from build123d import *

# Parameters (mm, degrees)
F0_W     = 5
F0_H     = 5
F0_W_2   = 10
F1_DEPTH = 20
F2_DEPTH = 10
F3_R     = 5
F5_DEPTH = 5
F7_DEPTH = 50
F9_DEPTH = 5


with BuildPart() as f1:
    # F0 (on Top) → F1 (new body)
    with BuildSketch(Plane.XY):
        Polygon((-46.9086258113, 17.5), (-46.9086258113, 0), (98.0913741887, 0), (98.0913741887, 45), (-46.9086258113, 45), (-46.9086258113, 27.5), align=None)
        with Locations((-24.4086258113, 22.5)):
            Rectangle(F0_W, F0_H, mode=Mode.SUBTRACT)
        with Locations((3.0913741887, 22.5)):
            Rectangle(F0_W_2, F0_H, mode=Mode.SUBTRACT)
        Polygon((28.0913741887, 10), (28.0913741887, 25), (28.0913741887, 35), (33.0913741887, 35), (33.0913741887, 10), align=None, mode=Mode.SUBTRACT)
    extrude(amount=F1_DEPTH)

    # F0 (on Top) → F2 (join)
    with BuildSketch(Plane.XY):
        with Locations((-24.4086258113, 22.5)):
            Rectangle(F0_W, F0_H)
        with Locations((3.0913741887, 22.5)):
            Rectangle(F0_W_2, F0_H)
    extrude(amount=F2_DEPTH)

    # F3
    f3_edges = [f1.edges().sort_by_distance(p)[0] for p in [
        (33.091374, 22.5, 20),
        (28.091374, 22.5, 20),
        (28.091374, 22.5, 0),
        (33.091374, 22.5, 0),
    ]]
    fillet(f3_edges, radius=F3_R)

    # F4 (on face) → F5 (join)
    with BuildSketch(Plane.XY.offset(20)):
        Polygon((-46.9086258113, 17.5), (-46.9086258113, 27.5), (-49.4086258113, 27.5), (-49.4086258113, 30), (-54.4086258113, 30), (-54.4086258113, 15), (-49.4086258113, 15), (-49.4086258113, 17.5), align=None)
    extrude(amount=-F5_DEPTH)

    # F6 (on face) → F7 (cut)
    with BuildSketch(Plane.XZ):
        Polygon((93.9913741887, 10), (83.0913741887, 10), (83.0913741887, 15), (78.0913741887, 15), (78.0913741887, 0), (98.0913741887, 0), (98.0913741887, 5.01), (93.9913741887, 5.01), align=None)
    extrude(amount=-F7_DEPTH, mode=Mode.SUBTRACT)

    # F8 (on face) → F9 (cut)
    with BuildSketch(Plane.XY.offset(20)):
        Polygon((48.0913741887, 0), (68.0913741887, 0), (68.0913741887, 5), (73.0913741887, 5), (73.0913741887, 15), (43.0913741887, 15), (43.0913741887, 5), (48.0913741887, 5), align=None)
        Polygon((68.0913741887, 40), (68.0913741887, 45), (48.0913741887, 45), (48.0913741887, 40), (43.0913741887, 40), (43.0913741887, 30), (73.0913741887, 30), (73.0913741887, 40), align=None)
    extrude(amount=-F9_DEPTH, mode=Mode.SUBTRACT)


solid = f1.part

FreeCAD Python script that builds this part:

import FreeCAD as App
import Part
import Sketcher


def edges_at(feature, points):
    """Names of the edges that pass closest to the given points."""
    edges = feature.Shape.Edges
    near = lambda p: min(range(len(edges)), key=lambda i: edges[i].distToShape(Part.Vertex(*p))[0])
    return sorted({f"Edge{near(p) + 1}" for p in points})

doc = App.newDocument("Part")
body = doc.addObject("PartDesign::Body", "Body")

sketch1 = body.newObject("Sketcher::SketchObject", "Sketch")
sketch1.AttachmentSupport = (doc.getObject("XY_Plane"), [""])
sketch1.MapMode = "FlatFace"
sketch1.addGeometry([
    Part.LineSegment(App.Vector(-47, 0, 0), App.Vector(98, 0, 0)),
    Part.LineSegment(App.Vector(98, 0, 0), App.Vector(98, 45, 0)),
    Part.LineSegment(App.Vector(98, 45, 0), App.Vector(-47, 45, 0)),
    Part.LineSegment(App.Vector(-47, 45, 0), App.Vector(-47, 0, 0)),
    Part.LineSegment(App.Vector(-22, 20, 0), App.Vector(-27, 20, 0)),
    Part.LineSegment(App.Vector(-27, 20, 0), App.Vector(-27, 25, 0)),
    Part.LineSegment(App.Vector(-27, 25, 0), App.Vector(-22, 25, 0)),
    Part.LineSegment(App.Vector(-22, 25, 0), App.Vector(-22, 20, 0)),
    Part.LineSegment(App.Vector(8, 20, 0), App.Vector(-2, 20, 0)),
    Part.LineSegment(App.Vector(-2, 20, 0), App.Vector(-2, 25, 0)),
    Part.LineSegment(App.Vector(-2, 25, 0), App.Vector(8, 25, 0)),
    Part.LineSegment(App.Vector(8, 25, 0), App.Vector(8, 20, 0)),
    Part.LineSegment(App.Vector(33, 10, 0), App.Vector(28, 10, 0)),
    Part.LineSegment(App.Vector(28, 10, 0), App.Vector(28, 35, 0)),
    Part.LineSegment(App.Vector(28, 35, 0), App.Vector(33, 35, 0)),
    Part.LineSegment(App.Vector(33, 35, 0), App.Vector(33, 10, 0)),
], False)
sketch1.addConstraint([
    Sketcher.Constraint("Coincident", 0, 2, 1, 1),
    Sketcher.Constraint("Coincident", 1, 2, 2, 1),
    Sketcher.Constraint("Coincident", 2, 2, 3, 1),
    Sketcher.Constraint("Coincident", 3, 2, 0, 1),
    Sketcher.Constraint("Coincident", 4, 2, 5, 1),
    Sketcher.Constraint("Coincident", 5, 2, 6, 1),
    Sketcher.Constraint("Coincident", 6, 2, 7, 1),
    Sketcher.Constraint("Coincident", 7, 2, 4, 1),
    Sketcher.Constraint("Coincident", 8, 2, 9, 1),
    Sketcher.Constraint("Coincident", 9, 2, 10, 1),
    Sketcher.Constraint("Coincident", 10, 2, 11, 1),
    Sketcher.Constraint("Coincident", 11, 2, 8, 1),
    Sketcher.Constraint("Coincident", 12, 2, 13, 1),
    Sketcher.Constraint("Coincident", 13, 2, 14, 1),
    Sketcher.Constraint("Coincident", 14, 2, 15, 1),
    Sketcher.Constraint("Coincident", 15, 2, 12, 1),
    Sketcher.Constraint("Horizontal", 0),
    Sketcher.Constraint("Vertical", 1),
    Sketcher.Constraint("Horizontal", 2),
    Sketcher.Constraint("Vertical", 3),
    Sketcher.Constraint("Horizontal", 4),
    Sketcher.Constraint("Vertical", 5),
    Sketcher.Constraint("Horizontal", 6),
    Sketcher.Constraint("Vertical", 7),
    Sketcher.Constraint("Horizontal", 8),
    Sketcher.Constraint("Vertical", 9),
    Sketcher.Constraint("Horizontal", 10),
    Sketcher.Constraint("Vertical", 11),
    Sketcher.Constraint("Horizontal", 12),
    Sketcher.Constraint("Vertical", 13),
    Sketcher.Constraint("Horizontal", 14),
    Sketcher.Constraint("Vertical", 15),
    Sketcher.Constraint("PointOnObject", 0, 2, -1),
    Sketcher.Constraint("Horizontal", 7, 2, 8, 2),
    Sketcher.Constraint("Horizontal", 6, 2, 9, 2),
    Sketcher.Constraint("Equal", 6, 12),
    Sketcher.Constraint("Equal", 14, 5),
    Sketcher.Constraint("DistanceX", 0, 1, 0, 2, 145.0),
    Sketcher.Constraint("DistanceX", 4, 2, 4, 1, 5.0),
    Sketcher.Constraint("DistanceX", 8, 2, 8, 1, 10.0),
    Sketcher.Constraint("DistanceY", 1, 1, 1, 2, 45.0),
    Sketcher.Constraint("DistanceY", 13, 1, 13, 2, 25.0),
    Sketcher.Constraint("DistanceY", -1, 1, 4, 2, 20.0),
    Sketcher.Constraint("DistanceY", -1, 1, 12, 2, 10.0),
    Sketcher.Constraint("DistanceX", 3, 2, 4, 2, 20.0),
    Sketcher.Constraint("DistanceX", 7, 2, 8, 2, 20.0),
    Sketcher.Constraint("DistanceX", 11, 2, 12, 2, 20.0),
    Sketcher.Constraint("DistanceX", -1, 1, 0, 2, 98.091374),
])
pad1 = body.newObject("PartDesign::Pad", "Pad")
pad1.Profile = sketch1
pad1.Length = 20

sketch2 = body.newObject("Sketcher::SketchObject", "Sketch001")
sketch2.AttachmentSupport = (doc.getObject("XY_Plane"), [""])
sketch2.MapMode = "FlatFace"
sketch2.addGeometry([
    Part.LineSegment(App.Vector(-27, 25, 0), App.Vector(-27, 20, 0)),
    Part.LineSegment(App.Vector(-27, 20, 0), App.Vector(-22, 20, 0)),
    Part.LineSegment(App.Vector(-22, 20, 0), App.Vector(-22, 25, 0)),
    Part.LineSegment(App.Vector(-22, 25, 0), App.Vector(-27, 25, 0)),
    Part.LineSegment(App.Vector(-2, 25, 0), App.Vector(-2, 20, 0)),
    Part.LineSegment(App.Vector(-2, 20, 0), App.Vector(8, 20, 0)),
    Part.LineSegment(App.Vector(8, 20, 0), App.Vector(8, 25, 0)),
    Part.LineSegment(App.Vector(8, 25, 0), App.Vector(-2, 25, 0)),
], False)
sketch2.addConstraint([
    Sketcher.Constraint("Coincident", 0, 2, 1, 1),
    Sketcher.Constraint("Coincident", 1, 2, 2, 1),
    Sketcher.Constraint("Coincident", 2, 2, 3, 1),
    Sketcher.Constraint("Coincident", 3, 2, 0, 1),
    Sketcher.Constraint("Coincident", 4, 2, 5, 1),
    Sketcher.Constraint("Coincident", 5, 2, 6, 1),
    Sketcher.Constraint("Coincident", 6, 2, 7, 1),
    Sketcher.Constraint("Coincident", 7, 2, 4, 1),
    Sketcher.Constraint("Vertical", 0),
    Sketcher.Constraint("Horizontal", 1),
    Sketcher.Constraint("Vertical", 2),
    Sketcher.Constraint("Horizontal", 3),
    Sketcher.Constraint("Vertical", 4),
    Sketcher.Constraint("Horizontal", 5),
    Sketcher.Constraint("Vertical", 6),
    Sketcher.Constraint("Horizontal", 7),
    Sketcher.Constraint("Horizontal", 1, 2, 4, 2),
    Sketcher.Constraint("Horizontal", 3, 2, 6, 2),
    Sketcher.Constraint("Equal", 3, 0),
    Sketcher.Constraint("DistanceX", 1, 1, 1, 2, 5.0),
    Sketcher.Constraint("DistanceX", 5, 1, 5, 2, 10.0),
    Sketcher.Constraint("DistanceY", -1, 1, 0, 2, 20.0),
    Sketcher.Constraint("DistanceX", 1, 2, 4, 2, 20.0),
    Sketcher.Constraint("DistanceX", 0, 2, -1, 1, 26.908626),
])
pad2 = body.newObject("PartDesign::Pad", "Pad001")
pad2.Profile = sketch2
pad2.Length = 10
doc.recompute()

fillet = body.newObject("PartDesign::Fillet", "Fillet")
fillet.Base = (pad2, edges_at(pad2, [
    (33.091, 22.5, 20),
    (28.091, 22.5, 20),
    (28.091, 22.5, 0),
    (33.091, 22.5, 0),
]))
fillet.Radius = 5

sketch3 = body.newObject("Sketcher::SketchObject", "Sketch002")
sketch3.AttachmentSupport = (doc.getObject("XY_Plane"), [""])
sketch3.MapMode = "FlatFace"
sketch3.AttachmentOffset = App.Placement(App.Vector(0, 0, 20), App.Rotation())
sketch3.addGeometry([
    Part.LineSegment(App.Vector(-46.9, 17.5, 0), App.Vector(-46.9, 27.5, 0)),
    Part.LineSegment(App.Vector(-46.9, 27.5, 0), App.Vector(-49.4, 27.5, 0)),
    Part.LineSegment(App.Vector(-49.4, 27.5, 0), App.Vector(-49.4, 30, 0)),
    Part.LineSegment(App.Vector(-49.4, 30, 0), App.Vector(-54.4, 30, 0)),
    Part.LineSegment(App.Vector(-54.4, 30, 0), App.Vector(-54.4, 15, 0)),
    Part.LineSegment(App.Vector(-54.4, 15, 0), App.Vector(-49.4, 15, 0)),
    Part.LineSegment(App.Vector(-49.4, 15, 0), App.Vector(-49.4, 17.5, 0)),
    Part.LineSegment(App.Vector(-49.4, 17.5, 0), App.Vector(-46.9, 17.5, 0)),
], False)
sketch3.addConstraint([
    Sketcher.Constraint("Coincident", 0, 2, 1, 1),
    Sketcher.Constraint("Coincident", 1, 2, 2, 1),
    Sketcher.Constraint("Coincident", 2, 2, 3, 1),
    Sketcher.Constraint("Coincident", 3, 2, 4, 1),
    Sketcher.Constraint("Coincident", 4, 2, 5, 1),
    Sketcher.Constraint("Coincident", 5, 2, 6, 1),
    Sketcher.Constraint("Coincident", 6, 2, 7, 1),
    Sketcher.Constraint("Coincident", 7, 2, 0, 1),
    Sketcher.Constraint("Vertical", 0),
    Sketcher.Constraint("Horizontal", 1),
    Sketcher.Constraint("Vertical", 2),
    Sketcher.Constraint("Horizontal", 3),
    Sketcher.Constraint("Vertical", 4),
    Sketcher.Constraint("Horizontal", 5),
    Sketcher.Constraint("Vertical", 6),
    Sketcher.Constraint("Horizontal", 7),
    Sketcher.Constraint("Vertical", 2, 2, 5, 2),
    Sketcher.Constraint("Equal", 7, 2),
    Sketcher.Constraint("Equal", 2, 6),
    Sketcher.Constraint("DistanceX", 3, 2, 3, 1, 5.0),
    Sketcher.Constraint("DistanceY", 0, 1, 0, 2, 10.0),
    Sketcher.Constraint("DistanceY", 4, 2, 4, 1, 15.0),
    Sketcher.Constraint("DistanceY", -1, 1, 2, 2, 30.0),
    Sketcher.Constraint("DistanceX", 0, 2, -1, 1, 46.908626),
])
pad3 = body.newObject("PartDesign::Pad", "Pad002")
pad3.Profile = sketch3
pad3.Length = 5
pad3.Reversed = True

sketch4 = body.newObject("Sketcher::SketchObject", "Sketch003")
sketch4.AttachmentSupport = (doc.getObject("XZ_Plane"), [""])
sketch4.MapMode = "FlatFace"
sketch4.addGeometry([
    Part.LineSegment(App.Vector(94, 10, 0), App.Vector(83.1, 10, 0)),
    Part.LineSegment(App.Vector(83.1, 10, 0), App.Vector(83.1, 15, 0)),
    Part.LineSegment(App.Vector(83.1, 15, 0), App.Vector(78.1, 15, 0)),
    Part.LineSegment(App.Vector(78.1, 15, 0), App.Vector(78.1, 0, 0)),
    Part.LineSegment(App.Vector(78.1, 0, 0), App.Vector(98.1, 0, 0)),
    Part.LineSegment(App.Vector(98.1, 0, 0), App.Vector(98.1, 5, 0)),
    Part.LineSegment(App.Vector(98.1, 5, 0), App.Vector(94, 5, 0)),
    Part.LineSegment(App.Vector(94, 5, 0), App.Vector(94, 10, 0)),
], False)
sketch4.addConstraint([
    Sketcher.Constraint("Coincident", 0, 2, 1, 1),
    Sketcher.Constraint("Coincident", 1, 2, 2, 1),
    Sketcher.Constraint("Coincident", 2, 2, 3, 1),
    Sketcher.Constraint("Coincident", 3, 2, 4, 1),
    Sketcher.Constraint("Coincident", 4, 2, 5, 1),
    Sketcher.Constraint("Coincident", 5, 2, 6, 1),
    Sketcher.Constraint("Coincident", 6, 2, 7, 1),
    Sketcher.Constraint("Coincident", 7, 2, 0, 1),
    Sketcher.Constraint("Horizontal", 0),
    Sketcher.Constraint("Vertical", 1),
    Sketcher.Constraint("Horizontal", 2),
    Sketcher.Constraint("Vertical", 3),
    Sketcher.Constraint("Horizontal", 4),
    Sketcher.Constraint("Vertical", 5),
    Sketcher.Constraint("Horizontal", 6),
    Sketcher.Constraint("Vertical", 7),
    Sketcher.Constraint("PointOnObject", 3, 2, -1),
    Sketcher.Constraint("Equal", 2, 1),
    Sketcher.Constraint("DistanceX", 2, 2, 2, 1, 5.0),
    Sketcher.Constraint("DistanceX", 4, 1, 4, 2, 20.0),
    Sketcher.Constraint("DistanceY", 3, 2, 3, 1, 15.0),
    Sketcher.Constraint("DistanceX", 0, 2, 0, 1, 10.9),
    Sketcher.Constraint("DistanceY", 5, 1, 5, 2, 5.01),
    Sketcher.Constraint("DistanceX", -1, 1, 0, 2, 83.091374),
])
pocket1 = body.newObject("PartDesign::Pocket", "Pocket")
pocket1.Profile = sketch4
pocket1.Length = 50

sketch5 = body.newObject("Sketcher::SketchObject", "Sketch004")
sketch5.AttachmentSupport = (doc.getObject("XY_Plane"), [""])
sketch5.MapMode = "FlatFace"
sketch5.AttachmentOffset = App.Placement(App.Vector(0, 0, 20), App.Rotation())
sketch5.addGeometry([
    Part.LineSegment(App.Vector(48, 0, 0), App.Vector(68, 0, 0)),
    Part.LineSegment(App.Vector(68, 0, 0), App.Vector(68, 5, 0)),
    Part.LineSegment(App.Vector(68, 5, 0), App.Vector(73, 5, 0)),
    Part.LineSegment(App.Vector(73, 5, 0), App.Vector(73, 15, 0)),
    Part.LineSegment(App.Vector(73, 15, 0), App.Vector(43, 15, 0)),
    Part.LineSegment(App.Vector(43, 15, 0), App.Vector(43, 5, 0)),
    Part.LineSegment(App.Vector(43, 5, 0), App.Vector(48, 5, 0)),
    Part.LineSegment(App.Vector(48, 5, 0), App.Vector(48, 0, 0)),
    Part.LineSegment(App.Vector(68, 40, 0), App.Vector(68, 45, 0)),
    Part.LineSegment(App.Vector(68, 45, 0), App.Vector(48, 45, 0)),
    Part.LineSegment(App.Vector(48, 45, 0), App.Vector(48, 40, 0)),
    Part.LineSegment(App.Vector(48, 40, 0), App.Vector(43, 40, 0)),
    Part.LineSegment(App.Vector(43, 40, 0), App.Vector(43, 30, 0)),
    Part.LineSegment(App.Vector(43, 30, 0), App.Vector(73, 30, 0)),
    Part.LineSegment(App.Vector(73, 30, 0), App.Vector(73, 40, 0)),
    Part.LineSegment(App.Vector(73, 40, 0), App.Vector(68, 40, 0)),
], False)
sketch5.addConstraint([
    Sketcher.Constraint("Coincident", 0, 2, 1, 1),
    Sketcher.Constraint("Coincident", 1, 2, 2, 1),
    Sketcher.Constraint("Coincident", 2, 2, 3, 1),
    Sketcher.Constraint("Coincident", 3, 2, 4, 1),
    Sketcher.Constraint("Coincident", 4, 2, 5, 1),
    Sketcher.Constraint("Coincident", 5, 2, 6, 1),
    Sketcher.Constraint("Coincident", 6, 2, 7, 1),
    Sketcher.Constraint("Coincident", 7, 2, 0, 1),
    Sketcher.Constraint("Coincident", 8, 2, 9, 1),
    Sketcher.Constraint("Coincident", 9, 2, 10, 1),
    Sketcher.Constraint("Coincident", 10, 2, 11, 1),
    Sketcher.Constraint("Coincident", 11, 2, 12, 1),
    Sketcher.Constraint("Coincident", 12, 2, 13, 1),
    Sketcher.Constraint("Coincident", 13, 2, 14, 1),
    Sketcher.Constraint("Coincident", 14, 2, 15, 1),
    Sketcher.Constraint("Coincident", 15, 2, 8, 1),
    Sketcher.Constraint("Horizontal", 0),
    Sketcher.Constraint("Vertical", 1),
    Sketcher.Constraint("Horizontal", 2),
    Sketcher.Constraint("Vertical", 3),
    Sketcher.Constraint("Horizontal", 4),
    Sketcher.Constraint("Vertical", 5),
    Sketcher.Constraint("Horizontal", 6),
    Sketcher.Constraint("Vertical", 7),
    Sketcher.Constraint("Vertical", 8),
    Sketcher.Constraint("Horizontal", 9),
    Sketcher.Constraint("Vertical", 10),
    Sketcher.Constraint("Horizontal", 11),
    Sketcher.Constraint("Vertical", 12),
    Sketcher.Constraint("Horizontal", 13),
    Sketcher.Constraint("Vertical", 14),
    Sketcher.Constraint("Horizontal", 15),
    Sketcher.Constraint("PointOnObject", 0, 2, -1),
    Sketcher.Constraint("Horizontal", 2, 2, 5, 2),
    Sketcher.Constraint("Horizontal", 11, 2, 14, 2),
    Sketcher.Constraint("Vertical", 1, 2, 8, 2),
    Sketcher.Constraint("Vertical", 7, 2, 9, 2),
    Sketcher.Constraint("Vertical", 5, 2, 11, 2),
    Sketcher.Constraint("Vertical", 3, 2, 13, 2),
    Sketcher.Constraint("Equal", 2, 6),
    Sketcher.Constraint("Equal", 15, 1),
    Sketcher.Constraint("Equal", 7, 8),
    Sketcher.Constraint("Equal", 5, 12),
    Sketcher.Constraint("DistanceX", 0, 1, 0, 2, 20.0),
    Sketcher.Constraint("DistanceX", 2, 1, 2, 2, 5.0),
    Sketcher.Constraint("DistanceY", 3, 1, 3, 2, 10.0),
    Sketcher.Constraint("DistanceY", -1, 1, 8, 2, 45.0),
    Sketcher.Constraint("DistanceX", -1, 1, 0, 2, 68.091374),
])
pocket2 = body.newObject("PartDesign::Pocket", "Pocket001")
pocket2.Profile = sketch5
pocket2.Length = 5

doc.recompute()
